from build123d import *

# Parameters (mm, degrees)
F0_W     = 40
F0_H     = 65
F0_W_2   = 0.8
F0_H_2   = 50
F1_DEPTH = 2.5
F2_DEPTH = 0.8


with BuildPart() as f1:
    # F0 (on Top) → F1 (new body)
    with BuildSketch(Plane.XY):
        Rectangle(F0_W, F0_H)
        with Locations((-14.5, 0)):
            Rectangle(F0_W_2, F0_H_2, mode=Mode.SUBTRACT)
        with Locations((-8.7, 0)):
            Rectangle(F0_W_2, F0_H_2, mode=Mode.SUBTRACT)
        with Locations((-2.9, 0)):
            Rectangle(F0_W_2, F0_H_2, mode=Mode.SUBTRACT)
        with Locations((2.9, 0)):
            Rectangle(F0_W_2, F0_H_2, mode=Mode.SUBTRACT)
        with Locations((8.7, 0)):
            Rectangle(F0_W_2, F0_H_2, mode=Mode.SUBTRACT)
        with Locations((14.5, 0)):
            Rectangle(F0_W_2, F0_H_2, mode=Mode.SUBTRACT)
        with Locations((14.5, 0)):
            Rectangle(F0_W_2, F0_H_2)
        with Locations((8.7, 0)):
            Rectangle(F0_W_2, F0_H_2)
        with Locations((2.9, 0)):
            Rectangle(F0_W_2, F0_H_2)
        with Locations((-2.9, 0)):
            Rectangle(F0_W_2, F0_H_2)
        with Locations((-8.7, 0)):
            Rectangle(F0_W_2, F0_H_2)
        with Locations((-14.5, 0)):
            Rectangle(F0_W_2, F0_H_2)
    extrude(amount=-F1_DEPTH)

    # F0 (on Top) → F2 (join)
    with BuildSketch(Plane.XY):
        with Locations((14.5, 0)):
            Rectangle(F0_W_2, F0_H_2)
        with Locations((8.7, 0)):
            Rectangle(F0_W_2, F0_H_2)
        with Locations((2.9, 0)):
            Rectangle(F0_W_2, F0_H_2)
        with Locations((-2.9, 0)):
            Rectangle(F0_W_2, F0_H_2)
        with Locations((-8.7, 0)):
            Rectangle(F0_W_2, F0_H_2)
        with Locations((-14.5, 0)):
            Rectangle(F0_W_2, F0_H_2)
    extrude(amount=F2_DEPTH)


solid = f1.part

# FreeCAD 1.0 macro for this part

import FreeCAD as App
import Part
import Sketcher

V = App.Vector

doc = App.newDocument("Part")
body = doc.addObject("PartDesign::Body", "Body")

# Sketch on XY plane
sketch1 = body.newObject("Sketcher::SketchObject", "Sketch")
sketch1.AttachmentSupport = (doc.getObject("XY_Plane"), [""])
sketch1.MapMode = "FlatFace"
sketch1.addGeometry([
    Part.LineSegment(V(-20, 32, 0), V(-20, -32, 0)),
    Part.LineSegment(V(-20, -32, 0), V(20, -32, 0)),
    Part.LineSegment(V(20, -32, 0), V(20, 32, 0)),
    Part.LineSegment(V(20, 32, 0), V(-20, 32, 0)),
], False)
sketch1.addConstraint([
    Sketcher.Constraint("Coincident", 0, 2, 1, 1),
    Sketcher.Constraint("Coincident", 1, 2, 2, 1),
    Sketcher.Constraint("Coincident", 2, 2, 3, 1),
    Sketcher.Constraint("Coincident", 3, 2, 0, 1),
    Sketcher.Constraint("Vertical", 0),
    Sketcher.Constraint("Horizontal", 1),
    Sketcher.Constraint("Vertical", 2),
    Sketcher.Constraint("Horizontal", 3),
    Sketcher.Constraint("Symmetric", 0, 2, 2, 2, -1, 1),
    Sketcher.Constraint("DistanceX", 1, 1, 1, 2, 40.0),
    Sketcher.Constraint("DistanceY", 0, 2, 0, 1, 65.0),
])
pad1 = body.newObject("PartDesign::Pad", "Pad")
pad1.Profile = sketch1
pad1.Length = 2.5
pad1.Reversed = True

# Sketch on XY plane
sketch2 = body.newObject("Sketcher::SketchObject", "Sketch001")
sketch2.AttachmentSupport = (doc.getObject("XY_Plane"), [""])
sketch2.MapMode = "FlatFace"
sketch2.addGeometry([
    Part.LineSegment(V(14.1, 25, 0), V(14.1, -25, 0)),  # 0
    Part.LineSegment(V(14.1, -25, 0), V(14.9, -25, 0)),  # 1
    Part.LineSegment(V(14.9, -25, 0), V(14.9, 25, 0)),  # 2
    Part.LineSegment(V(14.9, 25, 0), V(14.1, 25, 0)),  # 3
    Part.LineSegment(V(8.3, 25, 0), V(8.3, -25, 0)),  # 4
    Part.LineSegment(V(8.3, -25, 0), V(9.1, -25, 0)),  # 5
    Part.LineSegment(V(9.1, -25, 0), V(9.1, 25, 0)),  # 6
    Part.LineSegment(V(9.1, 25, 0), V(8.3, 25, 0)),  # 7
    Part.LineSegment(V(2.5, 25, 0), V(2.5, -25, 0)),  # 8
    Part.LineSegment(V(2.5, -25, 0), V(3.3, -25, 0)),  # 9
    Part.LineSegment(V(3.3, -25, 0), V(3.3, 25, 0)),  # 10
    Part.LineSegment(V(3.3, 25, 0), V(2.5, 25, 0)),  # 11
    Part.LineSegment(V(-3.3, 25, 0), V(-3.3, -25, 0)),  # 12
    Part.LineSegment(V(-3.3, -25, 0), V(-2.5, -25, 0)),  # 13
    Part.LineSegment(V(-2.5, -25, 0), V(-2.5, 25, 0)),  # 14
    Part.LineSegment(V(-2.5, 25, 0), V(-3.3, 25, 0)),  # 15
    Part.LineSegment(V(-9.1, 25, 0), V(-9.1, -25, 0)),  # 16
    Part.LineSegment(V(-9.1, -25, 0), V(-8.3, -25, 0)),  # 17
    Part.LineSegment(V(-8.3, -25, 0), V(-8.3, 25, 0)),  # 18
    Part.LineSegment(V(-8.3, 25, 0), V(-9.1, 25, 0)),  # 19
    Part.LineSegment(V(-14.9, 25, 0), V(-14.9, -25, 0)),  # 20
    Part.LineSegment(V(-14.9, -25, 0), V(-14.1, -25, 0)),  # 21
    Part.LineSegment(V(-14.1, -25, 0), V(-14.1, 25, 0)),  # 22
    Part.LineSegment(V(-14.1, 25, 0), V(-14.9, 25, 0)),  # 23
], False)
sketch2.addConstraint([
    Sketcher.Constraint("Coincident", 0, 2, 1, 1),
    Sketcher.Constraint("Coincident", 1, 2, 2, 1),
    Sketcher.Constraint("Coincident", 2, 2, 3, 1),
    Sketcher.Constraint("Coincident", 3, 2, 0, 1),
    Sketcher.Constraint("Coincident", 4, 2, 5, 1),
    Sketcher.Constraint("Coincident", 5, 2, 6, 1),
    Sketcher.Constraint("Coincident", 6, 2, 7, 1),
    Sketcher.Constraint("Coincident", 7, 2, 4, 1),
    Sketcher.Constraint("Coincident", 8, 2, 9, 1),
    Sketcher.Constraint("Coincident", 9, 2, 10, 1),
    Sketcher.Constraint("Coincident", 10, 2, 11, 1),
    Sketcher.Constraint("Coincident", 11, 2, 8, 1),
    Sketcher.Constraint("Coincident", 12, 2, 13, 1),
    Sketcher.Constraint("Coincident", 13, 2, 14, 1),
    Sketcher.Constraint("Coincident", 14, 2, 15, 1),
    Sketcher.Constraint("Coincident", 15, 2, 12, 1),
    Sketcher.Constraint("Coincident", 16, 2, 17, 1),
    Sketcher.Constraint("Coincident", 17, 2, 18, 1),
    Sketcher.Constraint("Coincident", 18, 2, 19, 1),
    Sketcher.Constraint("Coincident", 19, 2, 16, 1),
    Sketcher.Constraint("Coincident", 20, 2, 21, 1),
    Sketcher.Constraint("Coincident", 21, 2, 22, 1),
    Sketcher.Constraint("Coincident", 22, 2, 23, 1),
    Sketcher.Constraint("Coincident", 23, 2, 20, 1),
    Sketcher.Constraint("Vertical", 0),
    Sketcher.Constraint("Horizontal", 1),
    Sketcher.Constraint("Vertical", 2),
    Sketcher.Constraint("Horizontal", 3),
    Sketcher.Constraint("Vertical", 4),
    Sketcher.Constraint("Horizontal", 5),
    Sketcher.Constraint("Vertical", 6),
    Sketcher.Constraint("Horizontal", 7),
    Sketcher.Constraint("Vertical", 8),
    Sketcher.Constraint("Horizontal", 9),
    Sketcher.Constraint("Vertical", 10),
    Sketcher.Constraint("Horizontal", 11),
    Sketcher.Constraint("Vertical", 12),
    Sketcher.Constraint("Horizontal", 13),
    Sketcher.Constraint("Vertical", 14),
    Sketcher.Constraint("Horizontal", 15),
    Sketcher.Constraint("Vertical", 16),
    Sketcher.Constraint("Horizontal", 17),
    Sketcher.Constraint("Vertical", 18),
    Sketcher.Constraint("Horizontal", 19),
    Sketcher.Constraint("Vertical", 20),
    Sketcher.Constraint("Horizontal", 21),
    Sketcher.Constraint("Vertical", 22),
    Sketcher.Constraint("Horizontal", 23),
    Sketcher.Constraint("Symmetric", 10, 2, 12, 2, -1, 1),
    Sketcher.Constraint("Symmetric", 8, 2, 14, 2, -1, 1),
    Sketcher.Constraint("Symmetric", 6, 2, 16, 2, -1, 1),
    Sketcher.Constraint("Symmetric", 4, 2, 18, 2, -1, 1),
    Sketcher.Constraint("Symmetric", 2, 2, 20, 2, -1, 1),
    Sketcher.Constraint("Symmetric", 0, 2, 22, 2, -1, 1),
    Sketcher.Constraint("Horizontal", 1, 2, 4, 2),
    Sketcher.Constraint("Horizontal", 3, 2, 6, 2),
    Sketcher.Constraint("Horizontal", 5, 2, 8, 2),
    Sketcher.Constraint("Horizontal", 7, 2, 10, 2),
    Sketcher.Constraint("Horizontal", 9, 2, 12, 2),
    Sketcher.Constraint("Equal", 3, 5),
    Sketcher.Constraint("Equal", 7, 9),
    Sketcher.Constraint("DistanceY", 0, 2, 0, 1, 50.0),
    Sketcher.Constraint("DistanceX", 1, 1, 1, 2, 0.8),
    Sketcher.Constraint("DistanceX", 5, 2, 0, 2, 5.0),
    Sketcher.Constraint("DistanceX", 9, 2, 4, 2, 5.0),
    Sketcher.Constraint("DistanceX", 13, 2, 8, 2, 5.0),
])
pad2 = body.newObject("PartDesign::Pad", "Pad001")
pad2.Profile = sketch2
pad2.Length = 0.8

doc.recompute()
